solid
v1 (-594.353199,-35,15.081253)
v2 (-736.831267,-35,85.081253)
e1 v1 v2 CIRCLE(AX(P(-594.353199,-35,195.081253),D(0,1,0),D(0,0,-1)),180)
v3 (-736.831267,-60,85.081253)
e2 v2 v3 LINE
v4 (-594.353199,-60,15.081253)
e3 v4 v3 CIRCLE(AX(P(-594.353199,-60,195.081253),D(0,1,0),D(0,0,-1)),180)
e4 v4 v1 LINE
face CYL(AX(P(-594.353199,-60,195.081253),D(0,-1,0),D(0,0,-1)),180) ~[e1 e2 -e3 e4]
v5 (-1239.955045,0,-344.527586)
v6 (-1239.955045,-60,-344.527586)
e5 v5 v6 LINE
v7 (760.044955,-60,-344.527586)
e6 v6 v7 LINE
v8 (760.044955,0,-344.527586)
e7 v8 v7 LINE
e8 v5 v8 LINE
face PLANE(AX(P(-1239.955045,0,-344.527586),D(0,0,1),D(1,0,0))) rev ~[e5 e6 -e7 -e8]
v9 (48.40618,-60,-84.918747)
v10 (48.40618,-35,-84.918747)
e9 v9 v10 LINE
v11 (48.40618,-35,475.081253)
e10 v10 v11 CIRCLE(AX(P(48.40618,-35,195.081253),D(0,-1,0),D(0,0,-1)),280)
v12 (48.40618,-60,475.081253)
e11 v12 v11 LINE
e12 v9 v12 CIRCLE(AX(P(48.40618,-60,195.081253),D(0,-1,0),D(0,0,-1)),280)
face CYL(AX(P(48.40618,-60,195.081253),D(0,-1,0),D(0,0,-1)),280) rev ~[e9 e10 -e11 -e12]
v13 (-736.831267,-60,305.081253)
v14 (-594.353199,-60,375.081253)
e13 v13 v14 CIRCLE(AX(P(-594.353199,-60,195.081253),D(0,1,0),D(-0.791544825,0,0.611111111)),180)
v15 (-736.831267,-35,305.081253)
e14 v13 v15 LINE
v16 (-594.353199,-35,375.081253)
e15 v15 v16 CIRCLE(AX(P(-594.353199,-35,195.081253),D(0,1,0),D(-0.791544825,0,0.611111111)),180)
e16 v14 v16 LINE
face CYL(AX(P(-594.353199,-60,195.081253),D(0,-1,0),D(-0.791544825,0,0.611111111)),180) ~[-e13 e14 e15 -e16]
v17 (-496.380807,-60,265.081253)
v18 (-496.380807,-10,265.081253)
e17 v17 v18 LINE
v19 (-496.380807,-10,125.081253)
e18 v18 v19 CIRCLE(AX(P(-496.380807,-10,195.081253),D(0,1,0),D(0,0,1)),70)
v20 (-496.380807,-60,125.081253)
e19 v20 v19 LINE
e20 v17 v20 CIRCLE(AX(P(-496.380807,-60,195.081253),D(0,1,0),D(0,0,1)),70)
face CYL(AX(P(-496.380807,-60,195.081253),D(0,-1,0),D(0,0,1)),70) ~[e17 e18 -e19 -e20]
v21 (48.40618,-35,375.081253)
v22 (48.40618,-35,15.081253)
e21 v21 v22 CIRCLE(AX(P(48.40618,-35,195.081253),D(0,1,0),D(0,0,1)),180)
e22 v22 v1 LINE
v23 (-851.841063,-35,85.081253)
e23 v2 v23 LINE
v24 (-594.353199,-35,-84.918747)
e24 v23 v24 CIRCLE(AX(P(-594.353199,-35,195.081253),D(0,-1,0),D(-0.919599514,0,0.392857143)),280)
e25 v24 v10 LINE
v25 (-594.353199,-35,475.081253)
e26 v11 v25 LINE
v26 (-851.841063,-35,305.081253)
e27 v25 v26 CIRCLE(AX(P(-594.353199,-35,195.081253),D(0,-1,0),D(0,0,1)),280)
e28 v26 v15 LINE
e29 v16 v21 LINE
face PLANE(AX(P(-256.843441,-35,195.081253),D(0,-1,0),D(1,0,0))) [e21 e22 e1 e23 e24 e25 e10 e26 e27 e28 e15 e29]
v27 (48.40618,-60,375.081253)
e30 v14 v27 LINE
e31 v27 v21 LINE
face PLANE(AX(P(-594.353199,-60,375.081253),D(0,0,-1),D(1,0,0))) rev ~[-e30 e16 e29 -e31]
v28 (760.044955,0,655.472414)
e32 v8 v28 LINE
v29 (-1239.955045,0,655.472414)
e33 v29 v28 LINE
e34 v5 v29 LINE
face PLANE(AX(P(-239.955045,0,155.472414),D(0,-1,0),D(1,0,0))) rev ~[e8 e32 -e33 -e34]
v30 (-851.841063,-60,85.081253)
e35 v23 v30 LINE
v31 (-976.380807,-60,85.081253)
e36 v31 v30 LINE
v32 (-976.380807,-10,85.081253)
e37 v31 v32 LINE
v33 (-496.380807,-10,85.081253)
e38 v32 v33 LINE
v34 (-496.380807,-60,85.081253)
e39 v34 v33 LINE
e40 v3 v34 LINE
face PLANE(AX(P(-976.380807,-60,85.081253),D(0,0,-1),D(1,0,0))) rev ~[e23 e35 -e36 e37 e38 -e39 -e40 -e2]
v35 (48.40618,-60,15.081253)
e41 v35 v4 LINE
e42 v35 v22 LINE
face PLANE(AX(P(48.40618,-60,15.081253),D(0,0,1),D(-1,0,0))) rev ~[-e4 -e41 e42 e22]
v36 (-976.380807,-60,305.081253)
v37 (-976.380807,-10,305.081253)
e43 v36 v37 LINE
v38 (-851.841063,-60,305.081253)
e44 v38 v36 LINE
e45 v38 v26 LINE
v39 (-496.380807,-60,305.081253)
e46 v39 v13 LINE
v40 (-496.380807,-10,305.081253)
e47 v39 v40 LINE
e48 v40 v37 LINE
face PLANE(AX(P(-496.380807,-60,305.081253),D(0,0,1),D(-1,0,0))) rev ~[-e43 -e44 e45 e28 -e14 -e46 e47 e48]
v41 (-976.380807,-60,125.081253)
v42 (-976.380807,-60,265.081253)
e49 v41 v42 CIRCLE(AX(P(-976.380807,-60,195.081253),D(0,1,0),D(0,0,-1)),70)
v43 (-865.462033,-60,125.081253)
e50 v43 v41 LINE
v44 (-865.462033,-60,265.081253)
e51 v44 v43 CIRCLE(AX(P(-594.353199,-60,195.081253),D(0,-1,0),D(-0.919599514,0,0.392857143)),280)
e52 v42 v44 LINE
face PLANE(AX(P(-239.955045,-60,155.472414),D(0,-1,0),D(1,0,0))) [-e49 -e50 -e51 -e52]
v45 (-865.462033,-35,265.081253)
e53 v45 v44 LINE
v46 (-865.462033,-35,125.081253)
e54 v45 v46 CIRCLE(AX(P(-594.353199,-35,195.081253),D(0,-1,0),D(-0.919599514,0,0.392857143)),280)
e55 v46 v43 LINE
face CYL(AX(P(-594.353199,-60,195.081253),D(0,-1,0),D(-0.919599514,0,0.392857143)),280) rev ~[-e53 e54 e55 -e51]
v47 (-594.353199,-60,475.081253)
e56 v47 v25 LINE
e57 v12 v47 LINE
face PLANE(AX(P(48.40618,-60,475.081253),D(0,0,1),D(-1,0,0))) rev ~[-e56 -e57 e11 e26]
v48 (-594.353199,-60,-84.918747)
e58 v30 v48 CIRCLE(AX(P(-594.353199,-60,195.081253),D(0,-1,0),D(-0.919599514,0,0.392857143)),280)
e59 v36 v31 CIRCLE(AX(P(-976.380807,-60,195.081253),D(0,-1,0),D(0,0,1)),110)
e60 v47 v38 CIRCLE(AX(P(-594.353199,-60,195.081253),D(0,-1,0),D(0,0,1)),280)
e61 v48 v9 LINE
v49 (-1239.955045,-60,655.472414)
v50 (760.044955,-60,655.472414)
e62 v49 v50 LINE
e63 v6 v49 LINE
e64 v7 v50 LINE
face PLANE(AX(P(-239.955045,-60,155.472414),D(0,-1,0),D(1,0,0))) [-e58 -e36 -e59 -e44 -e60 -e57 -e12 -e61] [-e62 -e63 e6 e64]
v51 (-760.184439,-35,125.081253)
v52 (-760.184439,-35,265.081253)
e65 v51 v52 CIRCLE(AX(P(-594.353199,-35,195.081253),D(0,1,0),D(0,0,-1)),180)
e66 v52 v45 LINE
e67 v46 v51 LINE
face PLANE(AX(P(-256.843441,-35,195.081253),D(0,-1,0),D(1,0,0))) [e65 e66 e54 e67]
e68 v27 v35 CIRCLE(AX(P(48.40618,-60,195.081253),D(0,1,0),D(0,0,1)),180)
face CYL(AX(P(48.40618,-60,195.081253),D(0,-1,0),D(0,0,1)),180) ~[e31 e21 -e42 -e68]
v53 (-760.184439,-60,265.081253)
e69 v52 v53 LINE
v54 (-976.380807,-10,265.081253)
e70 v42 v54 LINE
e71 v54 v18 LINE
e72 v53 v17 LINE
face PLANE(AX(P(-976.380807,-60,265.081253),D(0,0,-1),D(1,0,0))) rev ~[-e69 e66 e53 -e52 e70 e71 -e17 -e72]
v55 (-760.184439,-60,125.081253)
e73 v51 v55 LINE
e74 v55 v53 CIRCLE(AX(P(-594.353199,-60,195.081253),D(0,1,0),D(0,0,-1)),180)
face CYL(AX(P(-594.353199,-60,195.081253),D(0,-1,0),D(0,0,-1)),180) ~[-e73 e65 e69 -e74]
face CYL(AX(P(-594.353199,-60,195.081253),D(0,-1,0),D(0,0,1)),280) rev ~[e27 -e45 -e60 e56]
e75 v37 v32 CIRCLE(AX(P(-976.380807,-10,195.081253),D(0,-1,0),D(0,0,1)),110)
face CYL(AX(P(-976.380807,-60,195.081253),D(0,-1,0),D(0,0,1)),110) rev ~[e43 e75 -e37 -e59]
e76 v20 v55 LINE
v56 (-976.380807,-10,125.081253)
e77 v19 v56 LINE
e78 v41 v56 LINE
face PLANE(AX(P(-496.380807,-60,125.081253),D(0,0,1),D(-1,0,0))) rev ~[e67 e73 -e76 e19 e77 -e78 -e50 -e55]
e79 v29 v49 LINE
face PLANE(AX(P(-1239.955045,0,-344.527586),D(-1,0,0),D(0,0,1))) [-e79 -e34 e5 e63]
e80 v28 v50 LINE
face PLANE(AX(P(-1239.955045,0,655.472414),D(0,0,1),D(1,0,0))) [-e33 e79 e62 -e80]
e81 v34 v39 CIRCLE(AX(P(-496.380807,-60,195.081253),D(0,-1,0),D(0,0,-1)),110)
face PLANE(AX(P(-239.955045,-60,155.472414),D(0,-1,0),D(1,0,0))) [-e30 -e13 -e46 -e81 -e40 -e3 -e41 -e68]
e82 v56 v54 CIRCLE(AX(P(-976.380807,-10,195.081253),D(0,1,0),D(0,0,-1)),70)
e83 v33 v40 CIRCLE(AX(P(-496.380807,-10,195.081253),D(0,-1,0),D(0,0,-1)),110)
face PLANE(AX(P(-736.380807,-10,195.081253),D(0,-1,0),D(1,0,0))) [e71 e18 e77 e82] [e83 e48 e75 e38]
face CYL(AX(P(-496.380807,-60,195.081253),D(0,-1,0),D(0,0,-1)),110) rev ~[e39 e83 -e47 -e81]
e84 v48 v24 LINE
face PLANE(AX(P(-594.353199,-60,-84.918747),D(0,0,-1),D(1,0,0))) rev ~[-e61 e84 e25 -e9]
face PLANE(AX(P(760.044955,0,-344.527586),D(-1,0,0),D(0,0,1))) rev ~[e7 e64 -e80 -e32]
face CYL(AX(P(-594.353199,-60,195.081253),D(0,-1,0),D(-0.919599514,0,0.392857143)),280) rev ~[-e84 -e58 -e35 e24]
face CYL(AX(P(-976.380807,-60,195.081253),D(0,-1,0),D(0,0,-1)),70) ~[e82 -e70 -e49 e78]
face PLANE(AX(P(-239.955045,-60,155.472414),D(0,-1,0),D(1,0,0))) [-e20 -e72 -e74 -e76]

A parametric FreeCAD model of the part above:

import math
import FreeCAD as App
import Part
import Sketcher


def add_polygon(sketch, points):
    """Adds a closed chain of lines whose ends are joined by coincident constraints."""
    first, n = sketch.GeometryCount, len(points)
    for a, b in zip(points, points[1:] + points[:1]):
        sketch.addGeometry(Part.LineSegment(App.Vector(*a, 0), App.Vector(*b, 0)), False)
    for i in range(n):
        sketch.addConstraint(Sketcher.Constraint("Coincident", first + i, 2, first + (i + 1) % n, 1))

doc = App.newDocument("Part")
body = doc.addObject("PartDesign::Body", "Body")

# Sketch on XZ plane
sketch1 = doc.addObject("Sketcher::SketchObject", "Sketch")
body.addObject(sketch1)
sketch1.AttachmentSupport = (doc.XZ_Plane, [""])
sketch1.MapMode = "FlatFace"
add_polygon(sketch1, [(-1240, 655), (-1240, -345), (760, -345), (760, 655)])  # lines 0-3
sketch1.addConstraint([
    Sketcher.Constraint("Vertical", 0),
    Sketcher.Constraint("Horizontal", 1),
    Sketcher.Constraint("Vertical", 2),
    Sketcher.Constraint("Horizontal", 3),
    Sketcher.Constraint("DistanceX", 1, 1, 1, 2, 2000.0),
    Sketcher.Constraint("DistanceY", 0, 2, 0, 1, 1000.0),
    Sketcher.Constraint("DistanceX", 0, 2, -1, 1, 1239.955045),
    Sketcher.Constraint("DistanceY", 0, 2, -1, 1, 344.527586),
])
pad1 = doc.addObject("PartDesign::Pad", "Pad")
body.addObject(pad1)
pad1.Profile = sketch1
pad1.Length = 60

# Sketch on XZ plane
sketch2 = doc.addObject("Sketcher::SketchObject", "Sketch001")
body.addObject(sketch2)
sketch2.AttachmentSupport = (doc.XZ_Plane, [""])
sketch2.MapMode = "FlatFace"
sketch2.AttachmentOffset = App.Placement(App.Vector(0, 0, 60), App.Rotation())
sketch2.addGeometry([
    Part.LineSegment(App.Vector(-496, 305, 0), App.Vector(-976, 305, 0)),  # 0
    Part.ArcOfCircle(Part.Circle(App.Vector(-976, 195, 0), App.Vector(0, 0, 1), 110), math.radians(90), math.radians(270)),  # 1
    Part.LineSegment(App.Vector(-976, 85, 0), App.Vector(-496, 85, 0)),  # 2
    Part.ArcOfCircle(Part.Circle(App.Vector(-496, 195, 0), App.Vector(0, 0, 1), 110), math.radians(-90), math.radians(90)),  # 3
    Part.LineSegment(App.Vector(-496, 125, 0), App.Vector(-976, 125, 0)),  # 4
    Part.ArcOfCircle(Part.Circle(App.Vector(-976, 195, 0), App.Vector(0, 0, 1), 70), math.radians(90), math.radians(270)),  # 5
    Part.LineSegment(App.Vector(-976, 265, 0), App.Vector(-496, 265, 0)),  # 6
    Part.ArcOfCircle(Part.Circle(App.Vector(-496, 195, 0), App.Vector(0, 0, 1), 70), math.radians(-90), math.radians(90)),  # 7
], False)
sketch2.addConstraint([
    Sketcher.Constraint("Tangent", 0, 2, 1, 1),
    Sketcher.Constraint("Tangent", 1, 2, 2, 1),
    Sketcher.Constraint("Tangent", 2, 2, 3, 1),
    Sketcher.Constraint("Tangent", 3, 2, 0, 1),
    Sketcher.Constraint("Tangent", 4, 2, 5, 2),
    Sketcher.Constraint("Tangent", 5, 1, 6, 1),
    Sketcher.Constraint("Tangent", 6, 2, 7, 2),
    Sketcher.Constraint("Tangent", 7, 1, 4, 1),
    Sketcher.Constraint("Horizontal", 0),
    Sketcher.Constraint("Horizontal", 2),
    Sketcher.Constraint("Horizontal", 4),
    Sketcher.Constraint("Horizontal", 6),
    Sketcher.Constraint("Coincident", 5, 3, 1, 3),
    Sketcher.Constraint("Vertical", 7, 3, 2, 2),
    Sketcher.Constraint("Radius", 1, 110.0),
    Sketcher.Constraint("Radius", 5, 70.0),
    Sketcher.Constraint("DistanceX", 0, 2, 0, 1, 480.0),
    Sketcher.Constraint("DistanceX", 1, 3, -1, 1, 976.380807),
    Sketcher.Constraint("DistanceY", -1, 1, 1, 3, 195.081253),
])
pocket1 = doc.addObject("PartDesign::Pocket", "Pocket")
body.addObject(pocket1)
pocket1.Profile = sketch2
pocket1.Length = 50

# Sketch on XZ plane
sketch3 = doc.addObject("Sketcher::SketchObject", "Sketch002")
body.addObject(sketch3)
sketch3.AttachmentSupport = (doc.XZ_Plane, [""])
sketch3.MapMode = "FlatFace"
sketch3.AttachmentOffset = App.Placement(App.Vector(0, 0, 60), App.Rotation())
sketch3.addGeometry([
    Part.LineSegment(App.Vector(-594, -85, 0), App.Vector(48, -85, 0)),  # 0
    Part.ArcOfCircle(Part.Circle(App.Vector(48, 195, 0), App.Vector(0, 0, 1), 280), math.radians(-90), math.radians(90)),  # 1
    Part.LineSegment(App.Vector(48, 475, 0), App.Vector(-594, 475, 0)),  # 2
    Part.ArcOfCircle(Part.Circle(App.Vector(-594, 195, 0), App.Vector(0, 0, 1), 280), math.radians(90), math.radians(157)),  # 3
    Part.ArcOfCircle(Part.Circle(App.Vector(-594, 195, 0), App.Vector(0, 0, 1), 280), math.radians(157), math.radians(270)),  # 4
    Part.ArcOfCircle(Part.Circle(App.Vector(-594, 195, 0), App.Vector(0, 0, 1), 180), math.radians(90), math.radians(142)),  # 5
    Part.LineSegment(App.Vector(-594, 375, 0), App.Vector(48, 375, 0)),  # 6
    Part.ArcOfCircle(Part.Circle(App.Vector(48, 195, 0), App.Vector(0, 0, 1), 180), math.radians(-90), math.radians(90)),  # 7
    Part.LineSegment(App.Vector(48, 15, 0), App.Vector(-594, 15, 0)),  # 8
    Part.ArcOfCircle(Part.Circle(App.Vector(-594, 195, 0), App.Vector(0, 0, 1), 180), math.radians(142), math.radians(270)),  # 9
], False)
sketch3.addConstraint([
    Sketcher.Constraint("Tangent", 0, 2, 1, 1),
    Sketcher.Constraint("Tangent", 1, 2, 2, 1),
    Sketcher.Constraint("Tangent", 2, 2, 3, 1),
    Sketcher.Constraint("Tangent", 3, 2, 4, 1),
    Sketcher.Constraint("Tangent", 4, 2, 0, 1),
    Sketcher.Constraint("Tangent", 5, 1, 6, 1),
    Sketcher.Constraint("Tangent", 6, 2, 7, 2),
    Sketcher.Constraint("Tangent", 7, 1, 8, 1),
    Sketcher.Constraint("Tangent", 8, 2, 9, 2),
    Sketcher.Constraint("Tangent", 9, 1, 5, 2),
    Sketcher.Constraint("Horizontal", 0),
    Sketcher.Constraint("Horizontal", 2),
    Sketcher.Constraint("Horizontal", 6),
    Sketcher.Constraint("Horizontal", 8),
    Sketcher.Constraint("Coincident", 5, 3, 3, 3),
    Sketcher.Constraint("Coincident", 7, 3, 1, 3),
    Sketcher.Constraint("Equal", 1, 3),
    Sketcher.Constraint("Horizontal", 3, 2, 9, 1),
    Sketcher.Constraint("Radius", 1, 280.0),
    Sketcher.Constraint("Radius", 5, 180.0),
    Sketcher.Constraint("DistanceY", 3, 3, 3, 2, 110.0),
    Sketcher.Constraint("DistanceX", 0, 1, 0, 2, 642.759379),
    Sketcher.Constraint("DistanceX", 3, 3, -1, 1, 594.353199),
    Sketcher.Constraint("DistanceY", -1, 1, 1, 3, 195.081253),
])
pocket2 = doc.addObject("PartDesign::Pocket", "Pocket001")
body.addObject(pocket2)
pocket2.Profile = sketch3
pocket2.Length = 25

doc.recompute()
